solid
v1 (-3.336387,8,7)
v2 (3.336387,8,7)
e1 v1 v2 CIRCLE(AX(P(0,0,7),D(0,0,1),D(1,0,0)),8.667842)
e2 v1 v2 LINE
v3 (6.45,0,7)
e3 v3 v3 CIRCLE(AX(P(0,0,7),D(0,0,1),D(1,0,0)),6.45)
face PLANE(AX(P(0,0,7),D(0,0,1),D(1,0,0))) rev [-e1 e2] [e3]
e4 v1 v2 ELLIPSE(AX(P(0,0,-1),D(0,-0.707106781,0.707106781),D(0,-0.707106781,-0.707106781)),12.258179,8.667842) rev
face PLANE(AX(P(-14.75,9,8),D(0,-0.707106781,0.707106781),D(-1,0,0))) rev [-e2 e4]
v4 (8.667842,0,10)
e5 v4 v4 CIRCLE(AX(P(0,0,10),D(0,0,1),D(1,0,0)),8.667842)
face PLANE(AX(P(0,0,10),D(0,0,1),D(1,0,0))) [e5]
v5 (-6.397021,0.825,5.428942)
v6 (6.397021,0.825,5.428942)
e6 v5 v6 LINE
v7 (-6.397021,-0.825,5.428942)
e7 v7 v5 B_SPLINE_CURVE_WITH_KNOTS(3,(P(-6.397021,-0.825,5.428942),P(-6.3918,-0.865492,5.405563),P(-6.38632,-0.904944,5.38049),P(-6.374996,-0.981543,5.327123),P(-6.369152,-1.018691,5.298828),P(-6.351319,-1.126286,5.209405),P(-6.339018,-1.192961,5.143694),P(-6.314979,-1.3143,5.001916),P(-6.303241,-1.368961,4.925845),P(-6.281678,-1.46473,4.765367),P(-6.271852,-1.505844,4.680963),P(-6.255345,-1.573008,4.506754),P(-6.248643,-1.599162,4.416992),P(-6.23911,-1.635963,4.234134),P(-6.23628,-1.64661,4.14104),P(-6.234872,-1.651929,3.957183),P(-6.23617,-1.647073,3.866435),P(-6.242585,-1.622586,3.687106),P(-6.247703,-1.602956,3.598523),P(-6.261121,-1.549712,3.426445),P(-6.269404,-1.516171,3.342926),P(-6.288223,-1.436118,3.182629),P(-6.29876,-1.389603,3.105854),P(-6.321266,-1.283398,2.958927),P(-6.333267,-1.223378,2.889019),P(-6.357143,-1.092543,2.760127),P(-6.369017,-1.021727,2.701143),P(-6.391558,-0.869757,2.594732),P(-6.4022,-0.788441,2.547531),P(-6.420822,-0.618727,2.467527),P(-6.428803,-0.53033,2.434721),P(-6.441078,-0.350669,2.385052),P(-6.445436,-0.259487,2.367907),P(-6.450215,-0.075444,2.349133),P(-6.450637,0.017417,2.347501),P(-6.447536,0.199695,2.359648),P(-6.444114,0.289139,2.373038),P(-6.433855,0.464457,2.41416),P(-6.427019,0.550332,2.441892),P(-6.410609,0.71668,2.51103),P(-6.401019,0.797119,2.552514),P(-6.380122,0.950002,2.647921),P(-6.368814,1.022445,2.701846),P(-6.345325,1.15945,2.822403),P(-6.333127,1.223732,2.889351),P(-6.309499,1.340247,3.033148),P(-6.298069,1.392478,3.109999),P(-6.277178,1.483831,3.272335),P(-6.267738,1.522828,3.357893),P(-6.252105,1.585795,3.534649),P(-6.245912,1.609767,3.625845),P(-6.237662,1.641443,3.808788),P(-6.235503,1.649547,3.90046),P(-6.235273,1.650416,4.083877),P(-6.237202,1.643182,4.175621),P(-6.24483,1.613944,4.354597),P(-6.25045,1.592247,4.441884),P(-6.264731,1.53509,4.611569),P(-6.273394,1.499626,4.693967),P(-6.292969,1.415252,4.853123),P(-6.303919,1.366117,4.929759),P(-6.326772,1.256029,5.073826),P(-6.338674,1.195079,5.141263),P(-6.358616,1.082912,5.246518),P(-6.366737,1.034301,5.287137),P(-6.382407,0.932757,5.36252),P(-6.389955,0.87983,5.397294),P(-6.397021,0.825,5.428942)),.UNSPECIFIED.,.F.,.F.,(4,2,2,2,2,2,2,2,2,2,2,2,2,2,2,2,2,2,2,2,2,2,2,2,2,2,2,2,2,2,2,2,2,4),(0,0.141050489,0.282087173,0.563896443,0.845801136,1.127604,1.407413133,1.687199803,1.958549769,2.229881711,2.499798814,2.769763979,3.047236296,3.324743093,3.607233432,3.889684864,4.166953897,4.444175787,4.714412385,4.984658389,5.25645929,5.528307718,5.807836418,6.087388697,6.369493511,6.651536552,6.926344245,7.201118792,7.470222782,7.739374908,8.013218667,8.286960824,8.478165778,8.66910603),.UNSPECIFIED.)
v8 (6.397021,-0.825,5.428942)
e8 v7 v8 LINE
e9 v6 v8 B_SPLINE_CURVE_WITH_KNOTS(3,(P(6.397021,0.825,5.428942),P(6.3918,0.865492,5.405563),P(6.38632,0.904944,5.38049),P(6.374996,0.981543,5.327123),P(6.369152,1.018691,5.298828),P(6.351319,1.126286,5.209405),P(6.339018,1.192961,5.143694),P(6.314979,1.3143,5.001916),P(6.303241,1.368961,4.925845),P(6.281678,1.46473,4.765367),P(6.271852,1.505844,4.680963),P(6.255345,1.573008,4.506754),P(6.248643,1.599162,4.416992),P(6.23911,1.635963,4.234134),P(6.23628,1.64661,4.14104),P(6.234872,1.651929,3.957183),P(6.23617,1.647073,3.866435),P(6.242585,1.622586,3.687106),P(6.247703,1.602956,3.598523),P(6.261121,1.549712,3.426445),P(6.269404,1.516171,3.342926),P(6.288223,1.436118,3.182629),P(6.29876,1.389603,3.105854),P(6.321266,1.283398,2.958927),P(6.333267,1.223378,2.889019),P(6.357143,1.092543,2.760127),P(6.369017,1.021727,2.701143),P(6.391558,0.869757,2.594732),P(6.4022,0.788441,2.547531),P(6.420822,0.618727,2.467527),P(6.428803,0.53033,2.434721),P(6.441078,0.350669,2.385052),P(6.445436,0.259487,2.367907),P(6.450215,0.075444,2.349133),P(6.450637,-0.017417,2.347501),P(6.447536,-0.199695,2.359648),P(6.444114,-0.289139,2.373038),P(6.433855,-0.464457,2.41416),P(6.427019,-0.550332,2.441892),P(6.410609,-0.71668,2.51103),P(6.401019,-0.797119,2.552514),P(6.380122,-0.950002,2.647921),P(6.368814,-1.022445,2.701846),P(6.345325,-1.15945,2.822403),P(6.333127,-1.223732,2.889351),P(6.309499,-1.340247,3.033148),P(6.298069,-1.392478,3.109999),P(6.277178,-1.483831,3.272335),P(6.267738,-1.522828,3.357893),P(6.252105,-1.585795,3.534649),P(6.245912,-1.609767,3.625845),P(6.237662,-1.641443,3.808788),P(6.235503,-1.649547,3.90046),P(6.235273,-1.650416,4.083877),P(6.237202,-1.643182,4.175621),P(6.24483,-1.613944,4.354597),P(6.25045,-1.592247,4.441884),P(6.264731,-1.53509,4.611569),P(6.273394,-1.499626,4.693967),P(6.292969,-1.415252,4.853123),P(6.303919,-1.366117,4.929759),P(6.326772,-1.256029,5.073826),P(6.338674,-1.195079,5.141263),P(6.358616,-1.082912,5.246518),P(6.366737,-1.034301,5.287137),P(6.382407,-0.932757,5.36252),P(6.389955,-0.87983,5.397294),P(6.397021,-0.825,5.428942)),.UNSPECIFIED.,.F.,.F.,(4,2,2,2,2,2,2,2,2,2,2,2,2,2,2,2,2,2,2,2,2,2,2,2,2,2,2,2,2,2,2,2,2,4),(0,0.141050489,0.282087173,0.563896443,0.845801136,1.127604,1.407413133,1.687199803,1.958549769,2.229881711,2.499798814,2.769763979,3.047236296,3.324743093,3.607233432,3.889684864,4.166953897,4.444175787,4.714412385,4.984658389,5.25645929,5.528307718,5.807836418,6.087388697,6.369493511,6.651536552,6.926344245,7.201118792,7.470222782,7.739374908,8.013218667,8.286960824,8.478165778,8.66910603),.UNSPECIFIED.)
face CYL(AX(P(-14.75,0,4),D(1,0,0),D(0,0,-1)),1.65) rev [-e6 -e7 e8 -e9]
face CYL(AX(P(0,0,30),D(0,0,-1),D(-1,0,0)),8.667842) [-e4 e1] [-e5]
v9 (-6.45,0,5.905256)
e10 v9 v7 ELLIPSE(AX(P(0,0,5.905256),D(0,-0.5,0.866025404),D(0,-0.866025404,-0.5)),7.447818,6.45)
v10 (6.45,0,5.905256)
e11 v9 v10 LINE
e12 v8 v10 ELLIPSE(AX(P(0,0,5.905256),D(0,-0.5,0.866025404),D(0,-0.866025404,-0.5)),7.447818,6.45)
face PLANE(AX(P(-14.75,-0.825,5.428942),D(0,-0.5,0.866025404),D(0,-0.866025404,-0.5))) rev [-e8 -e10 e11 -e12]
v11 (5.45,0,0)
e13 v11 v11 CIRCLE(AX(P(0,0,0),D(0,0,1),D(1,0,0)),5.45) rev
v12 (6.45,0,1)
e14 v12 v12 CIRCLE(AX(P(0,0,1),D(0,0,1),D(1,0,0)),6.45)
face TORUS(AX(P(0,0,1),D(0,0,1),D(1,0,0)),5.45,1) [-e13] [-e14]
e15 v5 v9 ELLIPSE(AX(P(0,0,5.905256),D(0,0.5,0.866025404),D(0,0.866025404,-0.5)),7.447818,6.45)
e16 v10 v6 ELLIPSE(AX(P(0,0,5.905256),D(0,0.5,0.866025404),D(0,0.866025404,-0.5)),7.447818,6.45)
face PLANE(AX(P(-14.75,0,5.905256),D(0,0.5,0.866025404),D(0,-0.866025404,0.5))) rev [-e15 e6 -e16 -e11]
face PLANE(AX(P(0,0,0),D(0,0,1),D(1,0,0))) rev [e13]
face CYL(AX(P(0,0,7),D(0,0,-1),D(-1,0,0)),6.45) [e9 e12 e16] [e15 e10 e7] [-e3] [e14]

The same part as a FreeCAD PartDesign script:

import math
import FreeCAD as App
import Part
import Sketcher

V = App.Vector
Q = App.Units.Quantity


def edges_at(feature, points):
    """Names of the edges that pass closest to the given points."""
    edges = feature.Shape.Edges
    near = lambda p: min(range(len(edges)), key=lambda i: edges[i].distToShape(Part.Vertex(*p))[0])
    return sorted({f"Edge{near(p) + 1}" for p in points})

doc = App.newDocument("Part")
body = doc.addObject("PartDesign::Body", "Body")

# Sketch on XY plane
sketch1 = body.newObject("Sketcher::SketchObject", "Sketch")
sketch1.AttachmentSupport = (doc.getObject("XY_Plane"), [""])
sketch1.MapMode = "FlatFace"
sketch1.addGeometry(Part.Circle(V(0, 0, 0), V(0, 0, 1), 6), False)
sketch1.addConstraint([
    Sketcher.Constraint("Coincident", 0, 3, -1, 1),
    Sketcher.Constraint("Diameter", 0, 12.9),
])
pad1 = body.newObject("PartDesign::Pad", "Pad")
pad1.Profile = sketch1
pad1.Length = 7

# Sketch on XY plane
sketch2 = body.newObject("Sketcher::SketchObject", "Sketch001")
sketch2.AttachmentSupport = (doc.getObject("XY_Plane"), [""])
sketch2.MapMode = "FlatFace"
sketch2.AttachmentOffset = App.Placement(V(0, 0, 7), App.Rotation())
sketch2.addGeometry([
    Part.LineSegment(V(-15, 9, 0), V(-15, -9, 0)),
    Part.LineSegment(V(-15, -9, 0), V(15, -9, 0)),
    Part.LineSegment(V(15, -9, 0), V(15, 9, 0)),
    Part.LineSegment(V(15, 9, 0), V(-15, 9, 0)),
], False)
sketch2.addConstraint([
    Sketcher.Constraint("Coincident", 0, 2, 1, 1),
    Sketcher.Constraint("Coincident", 1, 2, 2, 1),
    Sketcher.Constraint("Coincident", 2, 2, 3, 1),
    Sketcher.Constraint("Coincident", 3, 2, 0, 1),
    Sketcher.Constraint("Vertical", 0),
    Sketcher.Constraint("Horizontal", 1),
    Sketcher.Constraint("Vertical", 2),
    Sketcher.Constraint("Horizontal", 3),
    Sketcher.Constraint("Symmetric", 0, 2, 2, 2, -1, 1),
    Sketcher.Constraint("DistanceY", 0, 2, 0, 1, 18.0),
    Sketcher.Constraint("DistanceX", 1, 1, 1, 2, 29.5),
])
pad2 = body.newObject("PartDesign::Pad", "Pad001")
pad2.Profile = sketch2
pad2.Length = 3

# Sketch on YZ plane
sketch3 = body.newObject("Sketcher::SketchObject", "Sketch002")
sketch3.AttachmentSupport = (doc.getObject("YZ_Plane"), [""])
sketch3.MapMode = "FlatFace"
sketch3.AttachmentOffset = App.Placement(V(0, 0, 14.75), App.Rotation())
sketch3.addGeometry([
    Part.LineSegment(V(9, 10, 0), V(13.7, 23.3, 0)),  # 0
    Part.ArcOfCircle(Part.Circle(V(9, 25, 0), V(0, 0, 1), 5), math.radians(-19), math.radians(142)),  # 1
    Part.LineSegment(V(5.1, 28.1, 0), V(-9, 10, 0)),  # 2
    Part.LineSegment(V(-9, 10, 0), V(9, 10, 0)),  # 3
    Part.Circle(V(9, 25, 0), V(0, 0, 1), 1.6),  # 4
], False)
sketch3.addConstraint([
    Sketcher.Constraint("Tangent", 0, 2, 1, 1),
    Sketcher.Constraint("Tangent", 1, 2, 2, 1),
    Sketcher.Constraint("Coincident", 2, 2, 3, 1),
    Sketcher.Constraint("Coincident", 3, 2, 0, 1),
    Sketcher.Constraint("Horizontal", 3),
    Sketcher.Constraint("Coincident", 4, 3, 1, 3),
    Sketcher.Constraint("Vertical", 4, 3, 3, 2),
    Sketcher.Constraint("Radius", 1, 5.0),
    Sketcher.Constraint("Diameter", 4, 3.3),
    Sketcher.Constraint("DistanceX", 3, 1, 3, 2, 18.0),
    Sketcher.Constraint("DistanceX", -1, 1, 1, 3, 9.0),
    Sketcher.Constraint("DistanceY", -1, 1, 1, 3, 25.0),
    Sketcher.Constraint("DistanceY", -1, 1, 2, 2, 10.0),
])
pad3 = body.newObject("PartDesign::Pad", "Pad002")
pad3.Profile = sketch3
pad3.Length = 5
pad3.Reversed = True

# Sketch on YZ plane
sketch4 = body.newObject("Sketcher::SketchObject", "Sketch003")
sketch4.AttachmentSupport = (doc.getObject("YZ_Plane"), [""])
sketch4.MapMode = "FlatFace"
sketch4.AttachmentOffset = App.Placement(V(0, 0, -14.75), App.Rotation())
sketch4.addGeometry([
    Part.LineSegment(V(9, 10, 0), V(13.7, 23.3, 0)),  # 0
    Part.ArcOfCircle(Part.Circle(V(9, 25, 0), V(0, 0, 1), 5), math.radians(-19), math.radians(142)),  # 1
    Part.LineSegment(V(5.1, 28.1, 0), V(-9, 10, 0)),  # 2
    Part.LineSegment(V(-9, 10, 0), V(9, 10, 0)),  # 3
    Part.Circle(V(9, 25, 0), V(0, 0, 1), 1.6),  # 4
], False)
sketch4.addConstraint([
    Sketcher.Constraint("Tangent", 0, 2, 1, 1),
    Sketcher.Constraint("Tangent", 1, 2, 2, 1),
    Sketcher.Constraint("Coincident", 2, 2, 3, 1),
    Sketcher.Constraint("Coincident", 3, 2, 0, 1),
    Sketcher.Constraint("Horizontal", 3),
    Sketcher.Constraint("Coincident", 4, 3, 1, 3),
    Sketcher.Constraint("Vertical", 4, 3, 3, 2),
    Sketcher.Constraint("Radius", 1, 5.0),
    Sketcher.Constraint("Diameter", 4, 3.3),
    Sketcher.Constraint("DistanceX", 3, 1, 3, 2, 18.0),
    Sketcher.Constraint("DistanceX", -1, 1, 1, 3, 9.0),
    Sketcher.Constraint("DistanceY", -1, 1, 1, 3, 25.0),
    Sketcher.Constraint("DistanceY", -1, 1, 2, 2, 10.0),
])
pad4 = body.newObject("PartDesign::Pad", "Pad003")
pad4.Profile = sketch4
pad4.Length = 5

# Sketch on XZ plane
sketch5 = body.newObject("Sketcher::SketchObject", "Sketch004")
sketch5.AttachmentSupport = (doc.getObject("XZ_Plane"), [""])
sketch5.MapMode = "FlatFace"
sketch5.AttachmentOffset = App.Placement(V(0, 0, 9), App.Rotation())
sketch5.addGeometry([
    Part.LineSegment(V(-14.8, 7, 0), V(14.8, 7, 0)),
    Part.LineSegment(V(14.8, 7, 0), V(14.8, 10, 0)),
    Part.LineSegment(V(14.8, 10, 0), V(-14.8, 10, 0)),
    Part.LineSegment(V(-14.8, 10, 0), V(-14.8, 7, 0)),
], False)
sketch5.addConstraint([
    Sketcher.Constraint("Coincident", 0, 2, 1, 1),
    Sketcher.Constraint("Coincident", 1, 2, 2, 1),
    Sketcher.Constraint("Coincident", 2, 2, 3, 1),
    Sketcher.Constraint("Coincident", 3, 2, 0, 1),
    Sketcher.Constraint("Horizontal", 0),
    Sketcher.Constraint("Vertical", 1),
    Sketcher.Constraint("Horizontal", 2),
    Sketcher.Constraint("Vertical", 3),
    Sketcher.Constraint("DistanceY", 1, 1, 1, 2, 3.0),
    Sketcher.Constraint("DistanceX", 0, 1, 0, 2, 29.5),
    Sketcher.Constraint("DistanceY", -1, 1, 0, 2, 7.0),
    Sketcher.Constraint("DistanceX", -1, 1, 0, 2, 14.75),
])
pad5 = body.newObject("PartDesign::Pad", "Pad004")
pad5.Profile = sketch5
pad5.Length = 10
doc.recompute()

fillet = body.newObject("PartDesign::Fillet", "Fillet")
fillet.Base = (pad5, edges_at(pad5, [(-14.75, -19, 8.5), (14.75, -19, 8.5)]))
fillet.Radius = 5

# Sketch on XY plane
sketch6 = body.newObject("Sketcher::SketchObject", "Sketch005")
sketch6.AttachmentSupport = (doc.getObject("XY_Plane"), [""])
sketch6.MapMode = "FlatFace"
sketch6.AttachmentOffset = App.Placement(V(0, 0, 10), App.Rotation())
sketch6.addGeometry([
    Part.Circle(V(0, -14, 0), V(0, 0, 1), 2.5),
    Part.Circle(V(-9.8, -14, 0), V(0, 0, 1), 2.5),
    Part.Circle(V(9.8, -14, 0), V(0, 0, 1), 2.5),
], False)
sketch6.addConstraint([
    Sketcher.Constraint("Equal", 0, 1),
    Sketcher.Constraint("Equal", 1, 2),
    Sketcher.Constraint("Symmetric", 1, 3, 2, 3, -2),
    Sketcher.Constraint("PointOnObject", 0, 3, -2),
    Sketcher.Constraint("Horizontal", 0, 3, 1, 3),
    Sketcher.Constraint("Diameter", 0, 5.0),
    Sketcher.Constraint("DistanceY", 0, 3, -1, 1, 14.0),
    Sketcher.Constraint("DistanceX", 1, 3, 2, 3, 19.5),
])
pocket1 = body.newObject("PartDesign::Pocket", "Pocket")
pocket1.Profile = sketch6
pocket1.Type = "ThroughAll"
doc.recompute()

chamfer = body.newObject("PartDesign::Chamfer", "Chamfer")
chamfer.Base = (pocket1, edges_at(pocket1, [
    (7.25, -14, 7),
    (7.25, -14, 10),
    (-12.25, -14, 7),
    (-12.25, -14, 10),
    (-2.5, -14, 7),
    (-2.5, -14, 10),
]))
chamfer.Size = 1
doc.recompute()

chamfer2 = body.newObject("PartDesign::Chamfer", "Chamfer001")
chamfer2.Base = (chamfer, edges_at(chamfer, [
    (-14.75, 9, 8.5),
    (0, 9, 7),
    (14.75, 9, 8.5),
    (-14.75, 11.357, 16.667),
    (-14.75, 11.399, 29.387),
    (-14.75, -1.973, 19.035),
    (14.75, 11.357, 16.667),
    (14.75, 11.399, 29.387),
    (14.75, -1.973, 19.035),
]))
chamfer2.Size = 1

# Sketch on YZ plane
sketch7 = body.newObject("Sketcher::SketchObject", "Sketch006")
sketch7.AttachmentSupport = (doc.getObject("YZ_Plane"), [""])
sketch7.MapMode = "FlatFace"
sketch7.addGeometry([
    Part.LineSegment(V(0, 5.9, 0), V(-0.8, 5.4, 0)),
    Part.ArcOfCircle(Part.Circle(V(0, 4, 0), V(0, 0, 1), 1.6), math.radians(120), math.radians(420)),
    Part.LineSegment(V(0.8, 5.4, 0), V(0, 5.9, 0)),
], False)
sketch7.addConstraint([
    Sketcher.Constraint("Tangent", 0, 2, 1, 1),
    Sketcher.Constraint("Tangent", 1, 2, 2, 1),
    Sketcher.Constraint("Coincident", 2, 2, 0, 1),
    Sketcher.Constraint("Symmetric", 0, 2, 1, 2, -2),
    Sketcher.Constraint("Angle", 0, Q("-150 deg")),
    Sketcher.Constraint("Radius", 1, 1.65),
    Sketcher.Constraint("DistanceY", -1, 1, 1, 3, 4.0),
])
pocket2 = body.newObject("PartDesign::Pocket", "Pocket001")
pocket2.Profile = sketch7
pocket2.Type = "ThroughAll"
pocket2.Midplane = True
doc.recompute()

fillet2 = body.newObject("PartDesign::Fillet", "Fillet001")
fillet2.Base = (pocket2, edges_at(pocket2, [(-6.45, 0, 0)]))
fillet2.Radius = 1

# Sketch on XY plane
sketch8 = body.newObject("Sketcher::SketchObject", "Sketch007")
sketch8.AttachmentSupport = (doc.getObject("XY_Plane"), [""])
sketch8.MapMode = "FlatFace"
sketch8.addGeometry([
    Part.LineSegment(V(21, 20, 0), V(21, -25, 0)),  # 0
    Part.LineSegment(V(21, -25, 0), V(-21, -25, 0)),  # 1
    Part.LineSegment(V(-21, -25, 0), V(-21, 20, 0)),  # 2
    Part.LineSegment(V(-21, 20, 0), V(21, 20, 0)),  # 3
    Part.Circle(V(0, 0, 0), V(0, 0, 1), 9),  # 4
], False)
sketch8.addConstraint([
    Sketcher.Constraint("Coincident", 0, 2, 1, 1),
    Sketcher.Constraint("Coincident", 1, 2, 2, 1),
    Sketcher.Constraint("Coincident", 2, 2, 3, 1),
    Sketcher.Constraint("Coincident", 3, 2, 0, 1),
    Sketcher.Constraint("Vertical", 0),
    Sketcher.Constraint("Horizontal", 1),
    Sketcher.Constraint("Vertical", 2),
    Sketcher.Constraint("Horizontal", 3),
    Sketcher.Constraint("Coincident", 4, 3, -1, 1),
    Sketcher.Constraint("DistanceX", 1, 2, 1, 1, 42.194),
    Sketcher.Constraint("DistanceY", 0, 2, 0, 1, 45.694),
    Sketcher.Constraint("Diameter", 4, 17.335683),
    Sketcher.Constraint("DistanceX", -1, 1, 0, 2, 21.097),
    Sketcher.Constraint("DistanceY", 0, 2, -1, 1, 25.347),
])
pocket3 = body.newObject("PartDesign::Pocket", "Pocket002")
pocket3.Profile = sketch8
pocket3.Type = "ThroughAll"
pocket3.Midplane = True

doc.recompute()
